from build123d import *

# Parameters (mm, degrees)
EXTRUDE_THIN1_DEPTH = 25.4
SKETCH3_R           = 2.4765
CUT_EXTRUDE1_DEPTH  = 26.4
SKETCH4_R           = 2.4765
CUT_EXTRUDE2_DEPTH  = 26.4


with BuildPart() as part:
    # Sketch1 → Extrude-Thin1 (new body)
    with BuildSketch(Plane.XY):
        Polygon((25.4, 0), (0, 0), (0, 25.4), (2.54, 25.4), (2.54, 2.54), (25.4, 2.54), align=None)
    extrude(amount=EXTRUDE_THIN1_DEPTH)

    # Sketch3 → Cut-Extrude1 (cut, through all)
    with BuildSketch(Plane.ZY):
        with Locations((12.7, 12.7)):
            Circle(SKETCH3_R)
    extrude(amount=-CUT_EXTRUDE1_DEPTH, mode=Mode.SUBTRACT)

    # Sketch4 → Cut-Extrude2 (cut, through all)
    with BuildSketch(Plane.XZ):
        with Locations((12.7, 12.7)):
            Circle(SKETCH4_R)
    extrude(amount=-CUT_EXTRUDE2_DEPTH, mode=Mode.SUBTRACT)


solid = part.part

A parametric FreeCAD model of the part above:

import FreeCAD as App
import Part
import Sketcher
from FreeCAD import Vector
Q = App.Units.Quantity


def add_polygon(sketch, points):
    """Adds a closed chain of lines whose ends are joined by coincident constraints."""
    first, n = sketch.GeometryCount, len(points)
    for a, b in zip(points, points[1:] + points[:1]):
        sketch.addGeometry(Part.LineSegment(App.Vector(*a, 0), App.Vector(*b, 0)), False)
    for i in range(n):
        sketch.addConstraint(Sketcher.Constraint("Coincident", first + i, 2, first + (i + 1) % n, 1))

doc = App.newDocument("Part")
body = doc.addObject("PartDesign::Body", "Body")

# Sketch on XY plane
sketch1 = doc.addObject("Sketcher::SketchObject", "Sketch")
body.addObject(sketch1)
sketch1.AttachmentSupport = (doc.XY_Plane, [""])
sketch1.MapMode = "FlatFace"
add_polygon(sketch1, [(0, 0), (25.4, 0), (25.4, 2.5), (2.5, 2.5), (2.5, 25.4), (0, 25.4)])  # lines 0-5
sketch1.addConstraint([
    Sketcher.Constraint("Horizontal", 0),
    Sketcher.Constraint("Vertical", 1),
    Sketcher.Constraint("Horizontal", 2),
    Sketcher.Constraint("Vertical", 3),
    Sketcher.Constraint("Horizontal", 4),
    Sketcher.Constraint("Vertical", 5),
    Sketcher.Constraint("Coincident", 5, 2, -1, 1),
    Sketcher.Constraint("Equal", 4, 1),
    Sketcher.Constraint("Equal", 2, 3),
    Sketcher.Constraint("DistanceX", 0, 1, 0, 2, Q("1 in")),
    Sketcher.Constraint("DistanceX", 2, 2, 2, 1, Q("0.9 in")),
])
pad1 = doc.addObject("PartDesign::Pad", "Pad")
body.addObject(pad1)
pad1.Profile = sketch1
pad1.Length = Q("1 in")

# Sketch on YZ plane
sketch2 = doc.addObject("Sketcher::SketchObject", "Sketch001")
body.addObject(sketch2)
sketch2.AttachmentSupport = (doc.YZ_Plane, [""])
sketch2.MapMode = "FlatFace"
sketch2.addGeometry(Part.Circle(Vector(12.7, 12.7, 0), Vector(0, 0, 1), 2.5), False)
sketch2.addConstraint([
    Sketcher.Constraint("Diameter", 0, Q("0.195 in")),
    Sketcher.Constraint("DistanceX", -1, 1, 0, 3, Q("0.5 in")),
    Sketcher.Constraint("DistanceY", -1, 1, 0, 3, Q("0.5 in")),
])
pocket1 = doc.addObject("PartDesign::Pocket", "Pocket")
body.addObject(pocket1)
pocket1.Profile = sketch2
pocket1.Type = "ThroughAll"
pocket1.Reversed = True

# Sketch on XZ plane
sketch3 = doc.addObject("Sketcher::SketchObject", "Sketch002")
body.addObject(sketch3)
sketch3.AttachmentSupport = (doc.XZ_Plane, [""])
sketch3.MapMode = "FlatFace"
sketch3.addGeometry(Part.Circle(Vector(12.7, 12.7, 0), Vector(0, 0, 1), 2.5), False)
sketch3.addConstraint([
    Sketcher.Constraint("Diameter", 0, Q("0.195 in")),
    Sketcher.Constraint("DistanceX", -1, 1, 0, 3, Q("0.5 in")),
    Sketcher.Constraint("DistanceY", -1, 1, 0, 3, Q("0.5 in")),
])
pocket2 = doc.addObject("PartDesign::Pocket", "Pocket001")
body.addObject(pocket2)
pocket2.Profile = sketch3
pocket2.Type = "ThroughAll"

doc.recompute()
